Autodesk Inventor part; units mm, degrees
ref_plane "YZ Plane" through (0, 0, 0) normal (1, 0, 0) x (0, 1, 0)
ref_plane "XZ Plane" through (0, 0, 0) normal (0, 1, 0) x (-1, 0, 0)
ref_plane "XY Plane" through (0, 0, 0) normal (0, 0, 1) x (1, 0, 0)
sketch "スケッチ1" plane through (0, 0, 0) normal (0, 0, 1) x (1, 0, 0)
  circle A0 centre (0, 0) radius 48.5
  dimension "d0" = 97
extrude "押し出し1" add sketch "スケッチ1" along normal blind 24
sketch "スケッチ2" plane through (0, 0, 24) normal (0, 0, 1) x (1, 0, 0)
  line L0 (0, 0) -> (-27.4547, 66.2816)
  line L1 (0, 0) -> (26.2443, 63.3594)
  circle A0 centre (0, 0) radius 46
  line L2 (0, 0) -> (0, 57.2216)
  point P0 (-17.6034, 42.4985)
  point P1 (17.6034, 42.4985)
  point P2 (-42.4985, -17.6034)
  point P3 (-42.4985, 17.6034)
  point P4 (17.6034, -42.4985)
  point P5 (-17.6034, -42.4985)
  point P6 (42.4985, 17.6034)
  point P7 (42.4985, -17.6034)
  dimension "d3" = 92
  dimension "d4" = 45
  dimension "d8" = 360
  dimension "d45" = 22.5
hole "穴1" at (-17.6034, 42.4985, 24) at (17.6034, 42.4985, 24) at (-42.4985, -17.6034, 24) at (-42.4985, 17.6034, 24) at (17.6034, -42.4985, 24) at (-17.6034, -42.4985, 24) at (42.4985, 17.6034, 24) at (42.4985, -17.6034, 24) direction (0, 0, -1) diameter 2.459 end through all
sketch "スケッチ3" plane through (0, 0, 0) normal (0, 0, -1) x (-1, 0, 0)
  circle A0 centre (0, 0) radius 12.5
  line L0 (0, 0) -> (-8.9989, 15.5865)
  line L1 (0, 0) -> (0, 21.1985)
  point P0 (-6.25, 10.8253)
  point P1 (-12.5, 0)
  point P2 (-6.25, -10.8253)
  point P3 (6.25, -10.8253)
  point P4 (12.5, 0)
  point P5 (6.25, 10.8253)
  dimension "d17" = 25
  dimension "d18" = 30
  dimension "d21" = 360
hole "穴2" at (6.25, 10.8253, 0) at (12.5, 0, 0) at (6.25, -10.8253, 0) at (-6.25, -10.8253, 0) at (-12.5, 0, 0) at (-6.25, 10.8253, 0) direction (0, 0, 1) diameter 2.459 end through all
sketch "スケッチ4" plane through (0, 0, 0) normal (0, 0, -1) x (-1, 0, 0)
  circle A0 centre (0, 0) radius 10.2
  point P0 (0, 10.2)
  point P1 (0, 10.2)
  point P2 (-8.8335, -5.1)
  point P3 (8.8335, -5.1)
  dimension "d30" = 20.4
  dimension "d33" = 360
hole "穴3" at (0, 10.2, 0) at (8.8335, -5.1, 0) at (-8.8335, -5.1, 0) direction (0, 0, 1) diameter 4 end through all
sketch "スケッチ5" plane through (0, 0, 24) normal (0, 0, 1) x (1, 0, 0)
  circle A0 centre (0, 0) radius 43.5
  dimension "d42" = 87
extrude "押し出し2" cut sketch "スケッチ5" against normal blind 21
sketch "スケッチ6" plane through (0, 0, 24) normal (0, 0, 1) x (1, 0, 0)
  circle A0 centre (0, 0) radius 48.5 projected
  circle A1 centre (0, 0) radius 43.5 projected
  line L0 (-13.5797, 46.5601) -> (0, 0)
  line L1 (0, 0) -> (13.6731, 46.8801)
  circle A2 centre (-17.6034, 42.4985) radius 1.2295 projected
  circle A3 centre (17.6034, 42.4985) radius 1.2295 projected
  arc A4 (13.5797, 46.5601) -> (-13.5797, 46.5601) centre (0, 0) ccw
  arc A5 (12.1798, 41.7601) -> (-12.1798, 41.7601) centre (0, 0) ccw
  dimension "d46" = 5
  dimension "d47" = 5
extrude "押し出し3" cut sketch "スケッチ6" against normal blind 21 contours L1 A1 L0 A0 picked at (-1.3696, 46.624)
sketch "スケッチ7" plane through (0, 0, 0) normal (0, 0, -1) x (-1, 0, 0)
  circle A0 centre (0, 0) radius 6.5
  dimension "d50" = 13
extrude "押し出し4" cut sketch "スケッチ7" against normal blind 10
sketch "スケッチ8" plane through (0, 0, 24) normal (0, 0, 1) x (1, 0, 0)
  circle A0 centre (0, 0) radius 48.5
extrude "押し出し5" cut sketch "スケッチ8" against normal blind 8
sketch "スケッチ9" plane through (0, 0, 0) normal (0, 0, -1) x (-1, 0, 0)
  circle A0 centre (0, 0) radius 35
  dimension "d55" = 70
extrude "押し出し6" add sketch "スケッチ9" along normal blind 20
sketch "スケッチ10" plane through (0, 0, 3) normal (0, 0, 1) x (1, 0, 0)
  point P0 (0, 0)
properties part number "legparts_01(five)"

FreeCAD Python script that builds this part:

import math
import FreeCAD as App
import Part
import Sketcher
from FreeCAD import Vector
Q = App.Units.Quantity

doc = App.newDocument("Part")
body = doc.addObject("PartDesign::Body", "Body")

# Sketch on XY plane
sketch1 = body.newObject("Sketcher::SketchObject", "Sketch")
sketch1.AttachmentSupport = (doc.getObject("XY_Plane"), [""])
sketch1.MapMode = "FlatFace"
sketch1.addGeometry(Part.Circle(Vector(0, 0, 0), Vector(0, 0, 1), 48), False)
sketch1.addConstraint([
    Sketcher.Constraint("Coincident", 0, 3, -1, 1),
    Sketcher.Constraint("Diameter", 0, 97.0),
])
pad1 = body.newObject("PartDesign::Pad", "Pad")
pad1.Profile = sketch1
pad1.Length = 24

# Sketch on XY plane
sketch2 = body.newObject("Sketcher::SketchObject", "Sketch001")
sketch2.AttachmentSupport = (doc.getObject("XY_Plane"), [""])
sketch2.MapMode = "FlatFace"
sketch2.AttachmentOffset = App.Placement(Vector(0, 0, 24), App.Rotation())
sketch2.addGeometry([
    Part.Circle(Vector(-17.6, 42.5, 0), Vector(0, 0, 1), 1.2),  # 0
    Part.Circle(Vector(17.6, 42.5, 0), Vector(0, 0, 1), 1.2),  # 1
    Part.Circle(Vector(-42.5, -17.6, 0), Vector(0, 0, 1), 1.2),  # 2
    Part.Circle(Vector(-42.5, 17.6, 0), Vector(0, 0, 1), 1.2),  # 3
    Part.Circle(Vector(17.6, -42.5, 0), Vector(0, 0, 1), 1.2),  # 4
    Part.Circle(Vector(-17.6, -42.5, 0), Vector(0, 0, 1), 1.2),  # 5
    Part.Circle(Vector(42.5, 17.6, 0), Vector(0, 0, 1), 1.2),  # 6
    Part.Circle(Vector(42.5, -17.6, 0), Vector(0, 0, 1), 1.2),  # 7
], False)
sketch2.addConstraint([
    Sketcher.Constraint("Equal", 0, 1),
    Sketcher.Constraint("Equal", 1, 2),
    Sketcher.Constraint("Equal", 2, 3),
    Sketcher.Constraint("Equal", 3, 4),
    Sketcher.Constraint("Equal", 4, 5),
    Sketcher.Constraint("Equal", 5, 6),
    Sketcher.Constraint("Equal", 6, 7),
    Sketcher.Constraint("Symmetric", 0, 3, 4, 3, -1, 1),
    Sketcher.Constraint("Symmetric", 1, 3, 5, 3, -1, 1),
    Sketcher.Constraint("Symmetric", 2, 3, 6, 3, -1, 1),
    Sketcher.Constraint("Symmetric", 3, 3, 7, 3, -1, 1),
    Sketcher.Constraint("Symmetric", 0, 3, 1, 3, -2),
    Sketcher.Constraint("Symmetric", 3, 3, 6, 3, -2),
    Sketcher.Constraint("Diameter", 0, 2.459),
    Sketcher.Constraint("DistanceX", 2, 3, 0, 3, 24.895),
    Sketcher.Constraint("DistanceY", 2, 3, 0, 3, 60.102),
    Sketcher.Constraint("DistanceX", 2, 3, 1, 3, 60.102),
    Sketcher.Constraint("DistanceY", 3, 3, 0, 3, 24.895),
])
doc.recompute()
hole = body.newObject("PartDesign::Hole", "Hole")
hole.Profile = sketch2
hole.ThreadType = "None"
hole.Diameter = 2.459
hole.DepthType = "ThroughAll"

# Sketch on XY plane
sketch3 = body.newObject("Sketcher::SketchObject", "Sketch002")
sketch3.AttachmentSupport = (doc.getObject("XY_Plane"), [""])
sketch3.MapMode = "FlatFace"
sketch3.addGeometry([
    Part.Circle(Vector(6.2, 10.8, 0), Vector(0, 0, 1), 1.2),  # 0
    Part.Circle(Vector(12.5, 0, 0), Vector(0, 0, 1), 1.2),  # 1
    Part.Circle(Vector(6.2, -10.8, 0), Vector(0, 0, 1), 1.2),  # 2
    Part.Circle(Vector(-6.2, -10.8, 0), Vector(0, 0, 1), 1.2),  # 3
    Part.Circle(Vector(-12.5, 0, 0), Vector(0, 0, 1), 1.2),  # 4
    Part.Circle(Vector(-6.2, 10.8, 0), Vector(0, 0, 1), 1.2),  # 5
], False)
sketch3.addConstraint([
    Sketcher.Constraint("Equal", 0, 1),
    Sketcher.Constraint("Equal", 1, 2),
    Sketcher.Constraint("Equal", 2, 3),
    Sketcher.Constraint("Equal", 3, 4),
    Sketcher.Constraint("Equal", 4, 5),
    Sketcher.Constraint("Symmetric", 0, 3, 3, 3, -1, 1),
    Sketcher.Constraint("Symmetric", 1, 3, 4, 3, -1, 1),
    Sketcher.Constraint("Symmetric", 2, 3, 5, 3, -1, 1),
    Sketcher.Constraint("Symmetric", 2, 3, 3, 3, -2),
    Sketcher.Constraint("PointOnObject", 1, 3, -1),
    Sketcher.Constraint("Diameter", 0, 2.459),
    Sketcher.Constraint("DistanceX", 4, 3, 1, 3, 25.0),
    Sketcher.Constraint("DistanceX", 3, 3, 2, 3, 12.5),
    Sketcher.Constraint("DistanceY", -1, 1, 0, 3, 10.8253),
])
doc.recompute()
hole2 = body.newObject("PartDesign::Hole", "Hole001")
hole2.Profile = sketch3
hole2.ThreadType = "None"
hole2.Diameter = 2.459
hole2.DepthType = "ThroughAll"
hole2.Reversed = True

# Sketch on XY plane
sketch4 = body.newObject("Sketcher::SketchObject", "Sketch003")
sketch4.AttachmentSupport = (doc.getObject("XY_Plane"), [""])
sketch4.MapMode = "FlatFace"
sketch4.addGeometry([
    Part.Circle(Vector(0, 10.2, 0), Vector(0, 0, 1), 2),
    Part.Circle(Vector(8.8, -5.1, 0), Vector(0, 0, 1), 2),
    Part.Circle(Vector(-8.8, -5.1, 0), Vector(0, 0, 1), 2),
], False)
sketch4.addConstraint([
    Sketcher.Constraint("Equal", 0, 1),
    Sketcher.Constraint("Equal", 1, 2),
    Sketcher.Constraint("Symmetric", 1, 3, 2, 3, -2),
    Sketcher.Constraint("PointOnObject", 0, 3, -2),
    Sketcher.Constraint("Diameter", 0, 4.0),
    Sketcher.Constraint("DistanceY", -1, 1, 0, 3, 10.2),
    Sketcher.Constraint("DistanceY", 1, 3, -1, 1, 5.1),
    Sketcher.Constraint("DistanceX", 2, 3, 1, 3, 17.667),
])
doc.recompute()
hole3 = body.newObject("PartDesign::Hole", "Hole002")
hole3.Profile = sketch4
hole3.ThreadType = "None"
hole3.Diameter = 4
hole3.DepthType = "ThroughAll"
hole3.Reversed = True

# Sketch on XY plane
sketch5 = body.newObject("Sketcher::SketchObject", "Sketch004")
sketch5.AttachmentSupport = (doc.getObject("XY_Plane"), [""])
sketch5.MapMode = "FlatFace"
sketch5.AttachmentOffset = App.Placement(Vector(0, 0, 24), App.Rotation())
sketch5.addGeometry(Part.Circle(Vector(0, 0, 0), Vector(0, 0, 1), 44), False)
sketch5.addConstraint([
    Sketcher.Constraint("Coincident", 0, 3, -1, 1),
    Sketcher.Constraint("Diameter", 0, 87.0),
])
pocket1 = body.newObject("PartDesign::Pocket", "Pocket")
pocket1.Profile = sketch5
pocket1.Length = 21

# Sketch on XY plane
sketch6 = body.newObject("Sketcher::SketchObject", "Sketch005")
sketch6.AttachmentSupport = (doc.getObject("XY_Plane"), [""])
sketch6.MapMode = "FlatFace"
sketch6.AttachmentOffset = App.Placement(Vector(0, 0, 24), App.Rotation())
sketch6.addGeometry([
    Part.LineSegment(Vector(12.2, 41.8, 0), Vector(13.6, 46.6, 0)),
    Part.ArcOfCircle(Part.Circle(Vector(0, 0, 0), Vector(0, 0, 1), 48.5), math.radians(74), math.radians(106)),
    Part.LineSegment(Vector(-13.6, 46.6, 0), Vector(-12.2, 41.8, 0)),
    Part.ArcOfCircle(Part.Circle(Vector(0, 0, 0), Vector(0, 0, 1), 43.5), math.radians(74), math.radians(106)),
], False)
sketch6.addConstraint([
    Sketcher.Constraint("Coincident", 0, 2, 1, 1),
    Sketcher.Constraint("Coincident", 1, 2, 2, 1),
    Sketcher.Constraint("Coincident", 2, 2, 3, 2),
    Sketcher.Constraint("Coincident", 3, 1, 0, 1),
    Sketcher.Constraint("Coincident", 1, 3, -1, 1),
    Sketcher.Constraint("Coincident", 3, 3, -1, 1),
    Sketcher.Constraint("Horizontal", 0, 2, 1, 2),
    Sketcher.Constraint("Horizontal", 2, 2, 3, 1),
    Sketcher.Constraint("Distance", 0, 5.0),
    Sketcher.Constraint("Radius", 1, 48.5),
    Sketcher.Constraint("Angle", 0, Q("73.74 deg")),
    Sketcher.Constraint("DistanceY", -1, 1, 0, 2, 46.56),
])
pocket2 = body.newObject("PartDesign::Pocket", "Pocket001")
pocket2.Profile = sketch6
pocket2.Length = 21

# Sketch on XY plane
sketch7 = body.newObject("Sketcher::SketchObject", "Sketch006")
sketch7.AttachmentSupport = (doc.getObject("XY_Plane"), [""])
sketch7.MapMode = "FlatFace"
sketch7.addGeometry(Part.Circle(Vector(0, 0, 0), Vector(0, 0, 1), 6), False)
sketch7.addConstraint([
    Sketcher.Constraint("Coincident", 0, 3, -1, 1),
    Sketcher.Constraint("Diameter", 0, 13.0),
])
pocket3 = body.newObject("PartDesign::Pocket", "Pocket002")
pocket3.Profile = sketch7
pocket3.Length = 10
pocket3.Reversed = True

# Sketch on XY plane
sketch8 = body.newObject("Sketcher::SketchObject", "Sketch007")
sketch8.AttachmentSupport = (doc.getObject("XY_Plane"), [""])
sketch8.MapMode = "FlatFace"
sketch8.AttachmentOffset = App.Placement(Vector(0, 0, 24), App.Rotation())
sketch8.addGeometry(Part.Circle(Vector(0, 0, 0), Vector(0, 0, 1), 48), False)
sketch8.addConstraint([
    Sketcher.Constraint("Coincident", 0, 3, -1, 1),
    Sketcher.Constraint("Diameter", 0, 97.0),
])
pocket4 = body.newObject("PartDesign::Pocket", "Pocket003")
pocket4.Profile = sketch8
pocket4.Length = 8

# Sketch on XY plane
sketch9 = body.newObject("Sketcher::SketchObject", "Sketch008")
sketch9.AttachmentSupport = (doc.getObject("XY_Plane"), [""])
sketch9.MapMode = "FlatFace"
sketch9.addGeometry(Part.Circle(Vector(0, 0, 0), Vector(0, 0, 1), 35), False)
sketch9.addConstraint([
    Sketcher.Constraint("Coincident", 0, 3, -1, 1),
    Sketcher.Constraint("Diameter", 0, 70.0),
])
pad2 = body.newObject("PartDesign::Pad", "Pad001")
pad2.Profile = sketch9
pad2.Length = 20
pad2.Reversed = True

doc.recompute()
